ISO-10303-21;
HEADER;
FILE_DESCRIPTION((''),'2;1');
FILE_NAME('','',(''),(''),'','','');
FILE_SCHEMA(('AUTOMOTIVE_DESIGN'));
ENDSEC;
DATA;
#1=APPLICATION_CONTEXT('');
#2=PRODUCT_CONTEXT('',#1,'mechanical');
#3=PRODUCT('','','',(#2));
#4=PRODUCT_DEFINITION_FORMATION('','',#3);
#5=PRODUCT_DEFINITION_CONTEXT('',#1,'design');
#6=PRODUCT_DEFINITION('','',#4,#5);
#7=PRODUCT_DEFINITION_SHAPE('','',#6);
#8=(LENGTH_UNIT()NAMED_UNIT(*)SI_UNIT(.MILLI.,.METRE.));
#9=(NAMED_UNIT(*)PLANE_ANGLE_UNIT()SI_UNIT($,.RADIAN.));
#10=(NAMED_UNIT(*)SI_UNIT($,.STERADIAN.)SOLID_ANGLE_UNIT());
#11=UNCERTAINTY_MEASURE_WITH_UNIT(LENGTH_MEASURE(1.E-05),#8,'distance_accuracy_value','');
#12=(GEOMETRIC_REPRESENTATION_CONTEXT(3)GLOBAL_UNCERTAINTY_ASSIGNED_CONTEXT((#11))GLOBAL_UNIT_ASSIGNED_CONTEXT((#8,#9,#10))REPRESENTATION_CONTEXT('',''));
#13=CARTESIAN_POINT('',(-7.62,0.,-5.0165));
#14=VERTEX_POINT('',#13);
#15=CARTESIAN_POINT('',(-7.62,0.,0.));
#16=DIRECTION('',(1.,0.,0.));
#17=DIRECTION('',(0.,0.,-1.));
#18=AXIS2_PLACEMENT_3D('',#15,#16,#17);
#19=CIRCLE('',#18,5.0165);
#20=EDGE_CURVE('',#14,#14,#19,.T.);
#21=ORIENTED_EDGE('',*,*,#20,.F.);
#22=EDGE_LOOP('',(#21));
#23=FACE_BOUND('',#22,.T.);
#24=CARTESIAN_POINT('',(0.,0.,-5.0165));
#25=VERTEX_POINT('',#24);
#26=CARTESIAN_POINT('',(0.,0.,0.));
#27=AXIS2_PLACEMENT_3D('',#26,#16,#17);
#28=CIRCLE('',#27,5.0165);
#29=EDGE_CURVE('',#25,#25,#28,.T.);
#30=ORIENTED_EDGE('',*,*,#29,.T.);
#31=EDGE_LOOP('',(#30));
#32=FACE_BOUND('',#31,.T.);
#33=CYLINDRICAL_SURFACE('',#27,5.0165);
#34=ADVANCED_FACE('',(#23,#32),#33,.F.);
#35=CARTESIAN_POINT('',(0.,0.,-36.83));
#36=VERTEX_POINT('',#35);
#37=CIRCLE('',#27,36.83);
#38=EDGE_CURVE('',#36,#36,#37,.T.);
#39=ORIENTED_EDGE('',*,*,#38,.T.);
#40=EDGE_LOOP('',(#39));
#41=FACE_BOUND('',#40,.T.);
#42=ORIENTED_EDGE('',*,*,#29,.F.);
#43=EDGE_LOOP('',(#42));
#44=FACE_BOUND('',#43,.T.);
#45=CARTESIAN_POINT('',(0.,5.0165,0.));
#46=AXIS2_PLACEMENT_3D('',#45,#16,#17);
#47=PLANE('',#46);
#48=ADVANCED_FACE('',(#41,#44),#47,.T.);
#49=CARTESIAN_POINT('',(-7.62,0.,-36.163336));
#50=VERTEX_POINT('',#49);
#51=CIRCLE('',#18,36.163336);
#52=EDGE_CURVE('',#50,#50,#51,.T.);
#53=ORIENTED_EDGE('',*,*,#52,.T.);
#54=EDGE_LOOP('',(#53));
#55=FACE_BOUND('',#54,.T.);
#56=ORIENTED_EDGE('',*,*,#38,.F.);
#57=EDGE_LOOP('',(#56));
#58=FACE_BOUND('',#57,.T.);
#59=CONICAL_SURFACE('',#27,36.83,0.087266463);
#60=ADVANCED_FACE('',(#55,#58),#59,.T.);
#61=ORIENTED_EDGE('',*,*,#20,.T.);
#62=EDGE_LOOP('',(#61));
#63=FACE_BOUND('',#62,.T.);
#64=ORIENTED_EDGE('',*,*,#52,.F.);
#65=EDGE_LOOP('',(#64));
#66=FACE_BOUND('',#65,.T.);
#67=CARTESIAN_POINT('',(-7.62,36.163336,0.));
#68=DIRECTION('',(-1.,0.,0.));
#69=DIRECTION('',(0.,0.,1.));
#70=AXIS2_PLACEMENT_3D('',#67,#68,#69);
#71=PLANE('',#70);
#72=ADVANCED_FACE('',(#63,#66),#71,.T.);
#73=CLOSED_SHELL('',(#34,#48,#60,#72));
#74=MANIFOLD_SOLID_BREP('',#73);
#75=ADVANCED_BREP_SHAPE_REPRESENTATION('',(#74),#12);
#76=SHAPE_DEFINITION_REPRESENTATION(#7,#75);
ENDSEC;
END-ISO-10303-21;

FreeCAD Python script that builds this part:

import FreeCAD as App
import Part
import Sketcher
Q = App.Units.Quantity


def add_polygon(sketch, points):
    """Adds a closed chain of lines whose ends are joined by coincident constraints."""
    first, n = sketch.GeometryCount, len(points)
    for a, b in zip(points, points[1:] + points[:1]):
        sketch.addGeometry(Part.LineSegment(App.Vector(*a, 0), App.Vector(*b, 0)), False)
    for i in range(n):
        sketch.addConstraint(Sketcher.Constraint("Coincident", first + i, 2, first + (i + 1) % n, 1))

doc = App.newDocument("Part")
params = doc.addObject("Spreadsheet::Sheet", "Params")
for row, (alias, value) in enumerate([
    ("sketch1_width", "0.3 in"),
    ("revolution_angle", "360 deg"),
], start=1):
    params.set(f"A{row}", alias)
    params.set(f"B{row}", "=" + value)
    params.setAlias(f"B{row}", alias)

body = doc.addObject("PartDesign::Body", "Body")

sketch1 = doc.addObject("Sketcher::SketchObject", "Sketch")
body.addObject(sketch1)
sketch1.AttachmentSupport = (doc.XY_Plane, [""])
sketch1.MapMode = "FlatFace"
add_polygon(sketch1, [(0, 5), (0, 37), (-8, 36), (-8, 5)])
sketch1.addConstraint(Sketcher.Constraint("Vertical", 0))
sketch1.addConstraint(Sketcher.Constraint("Vertical", 2))
sketch1.addConstraint(Sketcher.Constraint("Horizontal", 3))
sketch1.addConstraint(Sketcher.Constraint("PointOnObject", 0, 2, -2))
sketch1.addConstraint(Sketcher.Constraint("DistanceX", 3, 1, 3, 2, Q("0.3 in")))
sketch1.addConstraint(Sketcher.Constraint("Angle", 1, Q("-175 deg")))
sketch1.addConstraint(Sketcher.Constraint("DistanceY", -1, 1, 0, 2, Q("1.45 in")))
sketch1.addConstraint(Sketcher.Constraint("DistanceY", 0, 1, 0, 2, Q("1.2525 in")))
sketch1.setExpression("Constraints[8]", "Params.sketch1_width")
revolution = doc.addObject("PartDesign::Revolution", "Revolution")
body.addObject(revolution)
revolution.Profile = sketch1
revolution.ReferenceAxis = (sketch1, ["H_Axis"])
revolution.setExpression("Angle", "Params.revolution_angle")

doc.recompute()
